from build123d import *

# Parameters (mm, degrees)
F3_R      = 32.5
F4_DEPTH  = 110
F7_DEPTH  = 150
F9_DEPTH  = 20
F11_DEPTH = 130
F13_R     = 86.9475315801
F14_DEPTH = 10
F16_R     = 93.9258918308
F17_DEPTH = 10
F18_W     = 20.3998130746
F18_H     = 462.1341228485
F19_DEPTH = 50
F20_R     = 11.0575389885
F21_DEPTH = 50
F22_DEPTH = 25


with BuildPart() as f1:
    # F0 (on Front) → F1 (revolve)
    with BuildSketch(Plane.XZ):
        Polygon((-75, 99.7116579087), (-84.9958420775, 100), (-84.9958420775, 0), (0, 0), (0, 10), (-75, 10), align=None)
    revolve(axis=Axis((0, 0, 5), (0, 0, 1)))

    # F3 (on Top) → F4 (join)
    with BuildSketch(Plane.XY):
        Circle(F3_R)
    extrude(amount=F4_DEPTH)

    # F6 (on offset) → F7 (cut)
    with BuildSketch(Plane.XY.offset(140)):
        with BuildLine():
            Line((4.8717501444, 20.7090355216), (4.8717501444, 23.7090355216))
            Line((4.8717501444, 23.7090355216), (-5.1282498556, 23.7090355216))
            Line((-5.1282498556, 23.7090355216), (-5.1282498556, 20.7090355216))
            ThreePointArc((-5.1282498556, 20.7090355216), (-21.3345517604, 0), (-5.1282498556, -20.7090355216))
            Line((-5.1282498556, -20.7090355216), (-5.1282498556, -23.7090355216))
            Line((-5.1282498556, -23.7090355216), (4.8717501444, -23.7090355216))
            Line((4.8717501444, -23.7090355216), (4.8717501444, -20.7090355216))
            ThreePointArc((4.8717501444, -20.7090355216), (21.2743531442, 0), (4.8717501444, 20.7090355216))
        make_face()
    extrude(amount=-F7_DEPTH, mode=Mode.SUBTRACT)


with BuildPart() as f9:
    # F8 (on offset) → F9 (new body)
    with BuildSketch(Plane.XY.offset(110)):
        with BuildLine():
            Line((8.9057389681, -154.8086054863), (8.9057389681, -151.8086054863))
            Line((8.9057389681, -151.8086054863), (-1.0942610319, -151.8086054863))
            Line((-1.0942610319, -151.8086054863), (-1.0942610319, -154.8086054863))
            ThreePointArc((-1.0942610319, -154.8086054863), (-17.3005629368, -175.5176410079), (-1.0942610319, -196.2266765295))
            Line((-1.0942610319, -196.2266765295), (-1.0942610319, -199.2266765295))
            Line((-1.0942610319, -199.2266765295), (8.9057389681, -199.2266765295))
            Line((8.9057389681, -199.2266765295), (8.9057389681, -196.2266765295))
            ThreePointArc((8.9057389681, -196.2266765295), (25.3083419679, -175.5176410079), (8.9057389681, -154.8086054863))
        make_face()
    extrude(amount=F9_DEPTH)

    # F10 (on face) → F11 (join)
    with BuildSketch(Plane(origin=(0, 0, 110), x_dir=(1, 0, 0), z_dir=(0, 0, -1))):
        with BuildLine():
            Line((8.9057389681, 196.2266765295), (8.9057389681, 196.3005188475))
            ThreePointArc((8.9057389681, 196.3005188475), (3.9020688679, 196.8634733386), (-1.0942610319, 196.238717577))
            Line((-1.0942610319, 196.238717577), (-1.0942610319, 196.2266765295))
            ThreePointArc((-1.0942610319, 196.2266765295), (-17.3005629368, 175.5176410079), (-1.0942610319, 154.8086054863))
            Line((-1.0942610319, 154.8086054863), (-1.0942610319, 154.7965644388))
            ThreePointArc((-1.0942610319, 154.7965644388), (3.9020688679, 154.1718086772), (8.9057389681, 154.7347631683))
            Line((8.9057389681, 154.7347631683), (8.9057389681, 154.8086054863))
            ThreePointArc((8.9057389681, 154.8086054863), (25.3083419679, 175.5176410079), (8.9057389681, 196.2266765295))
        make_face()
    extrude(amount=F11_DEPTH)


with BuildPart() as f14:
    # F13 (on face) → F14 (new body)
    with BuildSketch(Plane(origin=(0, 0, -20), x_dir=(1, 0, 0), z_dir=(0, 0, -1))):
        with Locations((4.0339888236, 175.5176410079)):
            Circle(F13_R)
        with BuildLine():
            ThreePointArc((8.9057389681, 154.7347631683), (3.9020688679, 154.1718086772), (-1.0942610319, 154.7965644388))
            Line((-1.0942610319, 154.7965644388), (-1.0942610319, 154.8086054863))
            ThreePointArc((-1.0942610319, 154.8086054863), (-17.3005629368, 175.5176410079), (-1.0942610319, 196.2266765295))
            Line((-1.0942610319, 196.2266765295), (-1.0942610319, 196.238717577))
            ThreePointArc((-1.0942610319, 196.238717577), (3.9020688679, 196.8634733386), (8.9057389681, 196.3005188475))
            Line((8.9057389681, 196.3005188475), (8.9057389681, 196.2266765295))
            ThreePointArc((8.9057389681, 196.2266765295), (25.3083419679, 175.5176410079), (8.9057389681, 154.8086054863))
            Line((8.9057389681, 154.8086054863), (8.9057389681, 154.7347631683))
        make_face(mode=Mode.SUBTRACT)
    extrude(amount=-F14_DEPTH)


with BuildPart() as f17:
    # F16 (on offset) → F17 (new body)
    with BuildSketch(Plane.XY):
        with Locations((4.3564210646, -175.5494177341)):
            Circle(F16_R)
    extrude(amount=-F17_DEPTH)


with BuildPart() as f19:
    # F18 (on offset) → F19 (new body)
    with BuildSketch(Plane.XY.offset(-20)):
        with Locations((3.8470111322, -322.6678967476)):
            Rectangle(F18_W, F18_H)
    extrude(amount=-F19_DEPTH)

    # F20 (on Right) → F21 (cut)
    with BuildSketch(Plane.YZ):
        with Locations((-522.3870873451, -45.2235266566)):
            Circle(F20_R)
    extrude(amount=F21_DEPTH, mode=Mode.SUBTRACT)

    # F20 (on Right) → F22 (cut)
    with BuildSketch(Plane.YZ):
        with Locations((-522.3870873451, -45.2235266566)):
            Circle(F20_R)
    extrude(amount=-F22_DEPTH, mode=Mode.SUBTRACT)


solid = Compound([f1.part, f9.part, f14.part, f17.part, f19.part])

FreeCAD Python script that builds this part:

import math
import FreeCAD as App
import Part
import Sketcher

doc = App.newDocument("Part")
params = doc.addObject("Spreadsheet::Sheet", "Params")
for row, (alias, value) in enumerate([
    ("sketch1_width", "75 mm"),
    ("sketch1_height", "100 mm"),
    ("sketch1_height2", "10 mm"),
    ("sketch1_length", "10 mm"),
    ("revolution_angle", "360 deg"),
    ("sketch2_diameter", "65 mm"),
    ("pad1_length", "110 mm"),
    ("sketch3_width", "10 mm"),
    ("sketch3_height", "3 mm"),
    ("pocket1_length", "150 mm"),
    ("sketch4_width", "10 mm"),
    ("sketch4_height", "3 mm"),
    ("pad2_length", "20 mm"),
    ("pad3_length", "130 mm"),
    ("pad4_length", "10 mm"),
    ("pad5_length", "10 mm"),
    ("pad6_length", "50 mm"),
    ("pocket2_length", "50 mm"),
    ("pocket3_length", "25 mm"),
], start=1):
    params.set(f"A{row}", alias)
    params.set(f"B{row}", "=" + value)
    params.setAlias(f"B{row}", alias)

body = doc.addObject("PartDesign::Body", "Body")

# Sketch on XZ plane
sketch1 = body.newObject("Sketcher::SketchObject", "Sketch")
sketch1.AttachmentSupport = (doc.getObject("XZ_Plane"), [""])
sketch1.MapMode = "FlatFace"
sketch1.addGeometry([
    Part.LineSegment(App.Vector(-75, 99.711658, 0), App.Vector(-84.995842, 100, 0)),  # 0
    Part.LineSegment(App.Vector(-84.995842, 100, 0), App.Vector(-84.995842, 0, 0)),  # 1
    Part.LineSegment(App.Vector(-84.995842, 0, 0), App.Vector(0, 0, 0)),  # 2
    Part.LineSegment(App.Vector(0, 0, 0), App.Vector(0, 10, 0)),  # 3
    Part.LineSegment(App.Vector(0, 10, 0), App.Vector(-75, 10, 0)),  # 4
    Part.LineSegment(App.Vector(-75, 10, 0), App.Vector(-75, 99.711658, 0)),  # 5
], False)
sketch1.addConstraint([
    Sketcher.Constraint("Coincident", 0, 2, 1, 1),
    Sketcher.Constraint("Coincident", 1, 2, 2, 1),
    Sketcher.Constraint("Coincident", 2, 2, 3, 1),
    Sketcher.Constraint("Coincident", 3, 2, 4, 1),
    Sketcher.Constraint("Coincident", 4, 2, 5, 1),
    Sketcher.Constraint("Coincident", 5, 2, 0, 1),
    Sketcher.Constraint("Vertical", 1),
    Sketcher.Constraint("Horizontal", 2),
    Sketcher.Constraint("Vertical", 3),
    Sketcher.Constraint("Horizontal", 4),
    Sketcher.Constraint("Vertical", 5),
    Sketcher.Constraint("Coincident", 2, 2, -1, 1),
    Sketcher.Constraint("DistanceX", 4, 2, 4, 1, 75.0),
    Sketcher.Constraint("DistanceY", 1, 2, 1, 1, 100.0),
    Sketcher.Constraint("DistanceY", 3, 1, 3, 2, 10.0),
    Sketcher.Constraint("Distance", 0, 10.0),
    Sketcher.Constraint("DistanceX", 2, 1, 2, 2, 84.995842),
])
sketch1.setExpression("Constraints[12]", "Params.sketch1_width")
sketch1.setExpression("Constraints[13]", "Params.sketch1_height")
sketch1.setExpression("Constraints[14]", "Params.sketch1_height2")
sketch1.setExpression("Constraints[15]", "Params.sketch1_length")
revolution = body.newObject("PartDesign::Revolution", "Revolution")
revolution.Profile = sketch1
revolution.ReferenceAxis = (sketch1, ["V_Axis"])
revolution.setExpression("Angle", "Params.revolution_angle")

# Sketch on XY plane
sketch2 = body.newObject("Sketcher::SketchObject", "Sketch001")
sketch2.AttachmentSupport = (doc.getObject("XY_Plane"), [""])
sketch2.MapMode = "FlatFace"
sketch2.addGeometry(Part.Circle(App.Vector(0, 0, 0), App.Vector(0, 0, 1), 32.5), False)
sketch2.addConstraint([
    Sketcher.Constraint("Coincident", 0, 3, -1, 1),
    Sketcher.Constraint("Diameter", 0, 65.0),
])
sketch2.setExpression("Constraints[1]", "Params.sketch2_diameter")
pad1 = body.newObject("PartDesign::Pad", "Pad")
pad1.Profile = sketch2
pad1.setExpression("Length", "Params.pad1_length")

# Sketch on XY plane
sketch3 = body.newObject("Sketcher::SketchObject", "Sketch002")
sketch3.AttachmentSupport = (doc.getObject("XY_Plane"), [""])
sketch3.MapMode = "FlatFace"
sketch3.AttachmentOffset = App.Placement(App.Vector(0, 0, 140), App.Rotation())
sketch3.addGeometry([
    Part.LineSegment(App.Vector(4.87175, 20.709036, 0), App.Vector(4.87175, 23.709036, 0)),  # 0
    Part.LineSegment(App.Vector(4.87175, 23.709036, 0), App.Vector(-5.12825, 23.709036, 0)),  # 1
    Part.LineSegment(App.Vector(-5.12825, 23.709036, 0), App.Vector(-5.12825, 20.709036, 0)),  # 2
    Part.ArcOfCircle(Part.Circle(App.Vector(0, 0, 0), App.Vector(0, 0, 1), 21.334552), math.radians(103.908555), math.radians(256.091445)),  # 3
    Part.LineSegment(App.Vector(-5.12825, -20.709036, 0), App.Vector(-5.12825, -23.709036, 0)),  # 4
    Part.LineSegment(App.Vector(-5.12825, -23.709036, 0), App.Vector(4.87175, -23.709036, 0)),  # 5
    Part.LineSegment(App.Vector(4.87175, -23.709036, 0), App.Vector(4.87175, -20.709036, 0)),  # 6
    Part.ArcOfCircle(Part.Circle(App.Vector(0, 0, 0), App.Vector(0, 0, 1), 21.274353), math.radians(-76.762008), math.radians(76.762008)),  # 7
], False)
sketch3.addConstraint([
    Sketcher.Constraint("Coincident", 0, 2, 1, 1),
    Sketcher.Constraint("Coincident", 1, 2, 2, 1),
    Sketcher.Constraint("Coincident", 2, 2, 3, 1),
    Sketcher.Constraint("Coincident", 3, 2, 4, 1),
    Sketcher.Constraint("Coincident", 4, 2, 5, 1),
    Sketcher.Constraint("Coincident", 5, 2, 6, 1),
    Sketcher.Constraint("Coincident", 6, 2, 7, 1),
    Sketcher.Constraint("Coincident", 7, 2, 0, 1),
    Sketcher.Constraint("Vertical", 0),
    Sketcher.Constraint("Horizontal", 1),
    Sketcher.Constraint("Vertical", 2),
    Sketcher.Constraint("Vertical", 4),
    Sketcher.Constraint("Horizontal", 5),
    Sketcher.Constraint("Vertical", 6),
    Sketcher.Constraint("Coincident", 3, 3, -1, 1),
    Sketcher.Constraint("Coincident", 7, 3, -1, 1),
    Sketcher.Constraint("Symmetric", 1, 2, 4, 2, -1),
    Sketcher.Constraint("Horizontal", 3, 2, 6, 2),
    Sketcher.Constraint("Horizontal", 2, 2, 7, 2),
    Sketcher.Constraint("DistanceX", 1, 2, 1, 1, 10.0),
    Sketcher.Constraint("DistanceY", 0, 1, 0, 2, 3.0),
    Sketcher.Constraint("Radius", 3, 21.334552),
    Sketcher.Constraint("Radius", 7, 21.274353),
])
sketch3.setExpression("Constraints[19]", "Params.sketch3_width")
sketch3.setExpression("Constraints[20]", "Params.sketch3_height")
pocket1 = body.newObject("PartDesign::Pocket", "Pocket")
pocket1.Profile = sketch3
pocket1.setExpression("Length", "Params.pocket1_length")
body2 = doc.addObject("PartDesign::Body", "Body001")

# Sketch on XY plane
sketch4 = body2.newObject("Sketcher::SketchObject", "Sketch003")
sketch4.AttachmentSupport = (doc.getObject("XY_Plane001"), [""])
sketch4.MapMode = "FlatFace"
sketch4.AttachmentOffset = App.Placement(App.Vector(0, 0, 110), App.Rotation())
sketch4.addGeometry([
    Part.LineSegment(App.Vector(8.905739, -154.808605, 0), App.Vector(8.905739, -151.808605, 0)),  # 0
    Part.LineSegment(App.Vector(8.905739, -151.808605, 0), App.Vector(-1.094261, -151.808605, 0)),  # 1
    Part.LineSegment(App.Vector(-1.094261, -151.808605, 0), App.Vector(-1.094261, -154.808605, 0)),  # 2
    Part.ArcOfCircle(Part.Circle(App.Vector(4.033989, -175.517641, 0), App.Vector(0, 0, 1), 21.334552), math.radians(103.908555), math.radians(256.091445)),  # 3
    Part.LineSegment(App.Vector(-1.094261, -196.226677, 0), App.Vector(-1.094261, -199.226677, 0)),  # 4
    Part.LineSegment(App.Vector(-1.094261, -199.226677, 0), App.Vector(8.905739, -199.226677, 0)),  # 5
    Part.LineSegment(App.Vector(8.905739, -199.226677, 0), App.Vector(8.905739, -196.226677, 0)),  # 6
    Part.ArcOfCircle(Part.Circle(App.Vector(4.033989, -175.517641, 0), App.Vector(0, 0, 1), 21.274353), math.radians(-76.762008), math.radians(76.762008)),  # 7
], False)
sketch4.addConstraint([
    Sketcher.Constraint("Coincident", 0, 2, 1, 1),
    Sketcher.Constraint("Coincident", 1, 2, 2, 1),
    Sketcher.Constraint("Coincident", 2, 2, 3, 1),
    Sketcher.Constraint("Coincident", 3, 2, 4, 1),
    Sketcher.Constraint("Coincident", 4, 2, 5, 1),
    Sketcher.Constraint("Coincident", 5, 2, 6, 1),
    Sketcher.Constraint("Coincident", 6, 2, 7, 1),
    Sketcher.Constraint("Coincident", 7, 2, 0, 1),
    Sketcher.Constraint("Vertical", 0),
    Sketcher.Constraint("Horizontal", 1),
    Sketcher.Constraint("Vertical", 2),
    Sketcher.Constraint("Vertical", 4),
    Sketcher.Constraint("Horizontal", 5),
    Sketcher.Constraint("Vertical", 6),
    Sketcher.Constraint("Coincident", 7, 3, 3, 3),
    Sketcher.Constraint("Horizontal", 3, 2, 6, 2),
    Sketcher.Constraint("Horizontal", 2, 2, 7, 2),
    Sketcher.Constraint("Vertical", 2, 2, 3, 2),
    Sketcher.Constraint("Equal", 2, 4),
    Sketcher.Constraint("DistanceX", 1, 2, 1, 1, 10.0),
    Sketcher.Constraint("DistanceY", 0, 1, 0, 2, 3.0),
    Sketcher.Constraint("Radius", 3, 21.334552),
    Sketcher.Constraint("Radius", 7, 21.274353),
    Sketcher.Constraint("DistanceX", -1, 1, 3, 3, 4.033989),
    Sketcher.Constraint("DistanceY", 3, 3, -1, 1, 175.517641),
])
sketch4.setExpression("Constraints[19]", "Params.sketch4_width")
sketch4.setExpression("Constraints[20]", "Params.sketch4_height")
pad2 = body2.newObject("PartDesign::Pad", "Pad001")
pad2.Profile = sketch4
pad2.setExpression("Length", "Params.pad2_length")

# Sketch on XY plane
sketch5 = body2.newObject("Sketcher::SketchObject", "Sketch004")
sketch5.AttachmentSupport = (doc.getObject("XY_Plane001"), [""])
sketch5.MapMode = "FlatFace"
sketch5.AttachmentOffset = App.Placement(App.Vector(0, 0, 110), App.Rotation())
sketch5.addGeometry([
    Part.LineSegment(App.Vector(8.905739, -196.226677, 0), App.Vector(8.905739, -196.300519, 0)),  # 0
    Part.ArcOfCircle(Part.Circle(App.Vector(4.033989, -175.517641, 0), App.Vector(0, 0, 1), 21.34624), math.radians(-103.900786), math.radians(-76.807395)),  # 1
    Part.LineSegment(App.Vector(-1.094261, -196.238718, 0), App.Vector(-1.094261, -196.226677, 0)),  # 2
    Part.ArcOfCircle(Part.Circle(App.Vector(4.033989, -175.517641, 0), App.Vector(0, 0, 1), 21.334552), math.radians(103.908555), math.radians(256.091445)),  # 3
    Part.LineSegment(App.Vector(-1.094261, -154.808605, 0), App.Vector(-1.094261, -154.796564, 0)),  # 4
    Part.ArcOfCircle(Part.Circle(App.Vector(4.033989, -175.517641, 0), App.Vector(0, 0, 1), 21.34624), math.radians(76.807395), math.radians(103.900786)),  # 5
    Part.LineSegment(App.Vector(8.905739, -154.734763, 0), App.Vector(8.905739, -154.808605, 0)),  # 6
    Part.ArcOfCircle(Part.Circle(App.Vector(4.033989, -175.517641, 0), App.Vector(0, 0, 1), 21.274353), math.radians(-76.762008), math.radians(76.762008)),  # 7
], False)
sketch5.addConstraint([
    Sketcher.Constraint("Coincident", 0, 2, 1, 2),
    Sketcher.Constraint("Coincident", 1, 1, 2, 1),
    Sketcher.Constraint("Coincident", 2, 2, 3, 2),
    Sketcher.Constraint("Coincident", 3, 1, 4, 1),
    Sketcher.Constraint("Coincident", 4, 2, 5, 2),
    Sketcher.Constraint("Coincident", 5, 1, 6, 1),
    Sketcher.Constraint("Coincident", 6, 2, 7, 2),
    Sketcher.Constraint("Coincident", 7, 1, 0, 1),
    Sketcher.Constraint("Vertical", 0),
    Sketcher.Constraint("Vertical", 2),
    Sketcher.Constraint("Vertical", 4),
    Sketcher.Constraint("Vertical", 6),
    Sketcher.Constraint("Coincident", 3, 3, 1, 3),
    Sketcher.Constraint("Coincident", 5, 3, 1, 3),
    Sketcher.Constraint("Coincident", 7, 3, 1, 3),
    Sketcher.Constraint("Equal", 1, 5),
    Sketcher.Constraint("Horizontal", 3, 1, 6, 2),
    Sketcher.Constraint("Horizontal", 2, 2, 7, 1),
    Sketcher.Constraint("Vertical", 2, 2, 3, 1),
    Sketcher.Constraint("DistanceX", 1, 1, 0, 2, 10.0),
    Sketcher.Constraint("Radius", 1, 21.34624),
    Sketcher.Constraint("Radius", 3, 21.334552),
    Sketcher.Constraint("Radius", 7, 21.274353),
    Sketcher.Constraint("DistanceX", -1, 1, 1, 3, 4.033989),
    Sketcher.Constraint("DistanceY", 1, 3, -1, 1, 175.517641),
])
pad3 = body2.newObject("PartDesign::Pad", "Pad002")
pad3.Profile = sketch5
pad3.setExpression("Length", "Params.pad3_length")
pad3.Reversed = True
body3 = doc.addObject("PartDesign::Body", "Body002")

# Sketch on XY plane
sketch6 = body3.newObject("Sketcher::SketchObject", "Sketch005")
sketch6.AttachmentSupport = (doc.getObject("XY_Plane002"), [""])
sketch6.MapMode = "FlatFace"
sketch6.AttachmentOffset = App.Placement(App.Vector(0, 0, -20), App.Rotation())
sketch6.addGeometry([
    Part.Circle(App.Vector(4.033989, -175.517641, 0), App.Vector(0, 0, 1), 86.947532),  # 0
    Part.LineSegment(App.Vector(8.905739, -154.808605, 0), App.Vector(8.905739, -154.734763, 0)),  # 1
    Part.ArcOfCircle(Part.Circle(App.Vector(4.033989, -175.517641, 0), App.Vector(0, 0, 1), 21.34624), math.radians(76.807395), math.radians(103.900786)),  # 2
    Part.LineSegment(App.Vector(-1.094261, -154.796564, 0), App.Vector(-1.094261, -154.808605, 0)),  # 3
    Part.ArcOfCircle(Part.Circle(App.Vector(4.033989, -175.517641, 0), App.Vector(0, 0, 1), 21.334552), math.radians(103.908555), math.radians(256.091445)),  # 4
    Part.LineSegment(App.Vector(-1.094261, -196.226677, 0), App.Vector(-1.094261, -196.238718, 0)),  # 5
    Part.ArcOfCircle(Part.Circle(App.Vector(4.033989, -175.517641, 0), App.Vector(0, 0, 1), 21.34624), math.radians(-103.900786), math.radians(-76.807395)),  # 6
    Part.LineSegment(App.Vector(8.905739, -196.300519, 0), App.Vector(8.905739, -196.226677, 0)),  # 7
    Part.ArcOfCircle(Part.Circle(App.Vector(4.033989, -175.517641, 0), App.Vector(0, 0, 1), 21.274353), math.radians(-76.762008), math.radians(76.762008)),  # 8
], False)
sketch6.addConstraint([
    Sketcher.Constraint("Coincident", 1, 2, 2, 1),
    Sketcher.Constraint("Coincident", 2, 2, 3, 1),
    Sketcher.Constraint("Coincident", 3, 2, 4, 1),
    Sketcher.Constraint("Coincident", 4, 2, 5, 1),
    Sketcher.Constraint("Coincident", 5, 2, 6, 1),
    Sketcher.Constraint("Coincident", 6, 2, 7, 1),
    Sketcher.Constraint("Coincident", 7, 2, 8, 1),
    Sketcher.Constraint("Coincident", 8, 2, 1, 1),
    Sketcher.Constraint("Vertical", 1),
    Sketcher.Constraint("Vertical", 3),
    Sketcher.Constraint("Vertical", 5),
    Sketcher.Constraint("Vertical", 7),
    Sketcher.Constraint("Coincident", 2, 3, 0, 3),
    Sketcher.Constraint("Coincident", 4, 3, 0, 3),
    Sketcher.Constraint("Coincident", 6, 3, 0, 3),
    Sketcher.Constraint("Coincident", 8, 3, 0, 3),
    Sketcher.Constraint("Equal", 2, 6),
    Sketcher.Constraint("Horizontal", 4, 2, 7, 2),
    Sketcher.Constraint("Horizontal", 3, 2, 8, 2),
    Sketcher.Constraint("Vertical", 3, 2, 4, 2),
    Sketcher.Constraint("DistanceX", 2, 2, 1, 2, 10.0),
    Sketcher.Constraint("Radius", 2, 21.34624),
    Sketcher.Constraint("Radius", 4, 21.334552),
    Sketcher.Constraint("Diameter", 0, 173.895063),
    Sketcher.Constraint("Radius", 8, 21.274353),
    Sketcher.Constraint("DistanceX", -1, 1, 0, 3, 4.033989),
    Sketcher.Constraint("DistanceY", 0, 3, -1, 1, 175.517641),
])
pad4 = body3.newObject("PartDesign::Pad", "Pad003")
pad4.Profile = sketch6
pad4.setExpression("Length", "Params.pad4_length")
body4 = doc.addObject("PartDesign::Body", "Body003")

# Sketch on XY plane
sketch7 = body4.newObject("Sketcher::SketchObject", "Sketch006")
sketch7.AttachmentSupport = (doc.getObject("XY_Plane003"), [""])
sketch7.MapMode = "FlatFace"
sketch7.addGeometry(Part.Circle(App.Vector(4.356421, -175.549418, 0), App.Vector(0, 0, 1), 93.925892), False)
sketch7.addConstraint([
    Sketcher.Constraint("Diameter", 0, 187.851784),
    Sketcher.Constraint("DistanceX", -1, 1, 0, 3, 4.356421),
    Sketcher.Constraint("DistanceY", 0, 3, -1, 1, 175.549418),
])
pad5 = body4.newObject("PartDesign::Pad", "Pad004")
pad5.Profile = sketch7
pad5.setExpression("Length", "Params.pad5_length")
pad5.Reversed = True
body5 = doc.addObject("PartDesign::Body", "Body004")

# Sketch on XY plane
sketch8 = body5.newObject("Sketcher::SketchObject", "Sketch007")
sketch8.AttachmentSupport = (doc.getObject("XY_Plane004"), [""])
sketch8.MapMode = "FlatFace"
sketch8.AttachmentOffset = App.Placement(App.Vector(0, 0, -20), App.Rotation())
sketch8.addGeometry([
    Part.LineSegment(App.Vector(-6.352895, -91.600835, 0), App.Vector(-6.352895, -553.734958, 0)),
    Part.LineSegment(App.Vector(-6.352895, -553.734958, 0), App.Vector(14.046918, -553.734958, 0)),
    Part.LineSegment(App.Vector(14.046918, -553.734958, 0), App.Vector(14.046918, -91.600835, 0)),
    Part.LineSegment(App.Vector(14.046918, -91.600835, 0), App.Vector(-6.352895, -91.600835, 0)),
], False)
sketch8.addConstraint([
    Sketcher.Constraint("Coincident", 0, 2, 1, 1),
    Sketcher.Constraint("Coincident", 1, 2, 2, 1),
    Sketcher.Constraint("Coincident", 2, 2, 3, 1),
    Sketcher.Constraint("Coincident", 3, 2, 0, 1),
    Sketcher.Constraint("Vertical", 0),
    Sketcher.Constraint("Horizontal", 1),
    Sketcher.Constraint("Vertical", 2),
    Sketcher.Constraint("Horizontal", 3),
    Sketcher.Constraint("DistanceX", 1, 1, 1, 2, 20.399813),
    Sketcher.Constraint("DistanceY", 0, 2, 0, 1, 462.134123),
    Sketcher.Constraint("DistanceY", 0, 2, -1, 1, 553.734958),
    Sketcher.Constraint("DistanceX", 0, 2, -1, 1, 6.352895),
])
pad6 = body5.newObject("PartDesign::Pad", "Pad005")
pad6.Profile = sketch8
pad6.setExpression("Length", "Params.pad6_length")
pad6.Reversed = True

# Sketch on YZ plane
sketch9 = body5.newObject("Sketcher::SketchObject", "Sketch008")
sketch9.AttachmentSupport = (doc.getObject("YZ_Plane004"), [""])
sketch9.MapMode = "FlatFace"
sketch9.addGeometry(Part.Circle(App.Vector(-522.387087, -45.223527, 0), App.Vector(0, 0, 1), 11.057539), False)
sketch9.addConstraint([
    Sketcher.Constraint("Diameter", 0, 22.115078),
    Sketcher.Constraint("DistanceX", 0, 3, -1, 1, 522.387087),
    Sketcher.Constraint("DistanceY", 0, 3, -1, 1, 45.223527),
])
pocket2 = body5.newObject("PartDesign::Pocket", "Pocket001")
pocket2.Profile = sketch9
pocket2.setExpression("Length", "Params.pocket2_length")
pocket2.Reversed = True

# Sketch on YZ plane
sketch10 = body5.newObject("Sketcher::SketchObject", "Sketch009")
sketch10.AttachmentSupport = (doc.getObject("YZ_Plane004"), [""])
sketch10.MapMode = "FlatFace"
sketch10.addGeometry(Part.Circle(App.Vector(-522.387087, -45.223527, 0), App.Vector(0, 0, 1), 11.057539), False)
sketch10.addConstraint([
    Sketcher.Constraint("Diameter", 0, 22.115078),
    Sketcher.Constraint("DistanceX", 0, 3, -1, 1, 522.387087),
    Sketcher.Constraint("DistanceY", 0, 3, -1, 1, 45.223527),
])
pocket3 = body5.newObject("PartDesign::Pocket", "Pocket002")
pocket3.Profile = sketch10
pocket3.setExpression("Length", "Params.pocket3_length")

doc.recompute()
